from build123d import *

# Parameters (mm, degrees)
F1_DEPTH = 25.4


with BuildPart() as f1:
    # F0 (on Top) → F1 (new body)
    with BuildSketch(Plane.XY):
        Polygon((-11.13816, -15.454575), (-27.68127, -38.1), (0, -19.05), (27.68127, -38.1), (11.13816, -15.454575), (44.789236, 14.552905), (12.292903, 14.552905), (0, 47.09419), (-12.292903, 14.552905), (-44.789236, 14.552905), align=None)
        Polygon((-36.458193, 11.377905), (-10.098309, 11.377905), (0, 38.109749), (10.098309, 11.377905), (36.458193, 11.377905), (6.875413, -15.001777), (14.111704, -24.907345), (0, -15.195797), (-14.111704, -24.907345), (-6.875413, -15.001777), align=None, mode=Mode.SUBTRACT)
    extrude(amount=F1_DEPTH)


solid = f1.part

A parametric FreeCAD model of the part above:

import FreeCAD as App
import Part
import Sketcher

V = App.Vector
Q = App.Units.Quantity

doc = App.newDocument("Part")
body = doc.addObject("PartDesign::Body", "Body")

sketch1 = doc.addObject("Sketcher::SketchObject", "Sketch")
body.addObject(sketch1)
sketch1.AttachmentSupport = (doc.XY_Plane, [""])
sketch1.MapMode = "FlatFace"
sketch1.addGeometry([
    Part.LineSegment(V(-11, -15, 0), V(-28, -38, 0)),
    Part.LineSegment(V(-28, -38, 0), V(0, -19, 0)),
    Part.LineSegment(V(0, -19, 0), V(28, -38, 0)),
    Part.LineSegment(V(28, -38, 0), V(11, -15, 0)),
    Part.LineSegment(V(11, -15, 0), V(45, 15, 0)),
    Part.LineSegment(V(45, 15, 0), V(12, 15, 0)),
    Part.LineSegment(V(12, 15, 0), V(0, 47, 0)),
    Part.LineSegment(V(0, 47, 0), V(-12, 15, 0)),
    Part.LineSegment(V(-12, 15, 0), V(-45, 15, 0)),
    Part.LineSegment(V(-45, 15, 0), V(-11, -15, 0)),
    Part.LineSegment(V(-7, -15, 0), V(-36, 11, 0)),
    Part.LineSegment(V(-36, 11, 0), V(-10, 11, 0)),
    Part.LineSegment(V(-10, 11, 0), V(0, 38, 0)),
    Part.LineSegment(V(0, 38, 0), V(10, 11, 0)),
    Part.LineSegment(V(10, 11, 0), V(36, 11, 0)),
    Part.LineSegment(V(36, 11, 0), V(7, -15, 0)),
    Part.LineSegment(V(7, -15, 0), V(14, -25, 0)),
    Part.LineSegment(V(14, -25, 0), V(0, -15, 0)),
    Part.LineSegment(V(0, -15, 0), V(-14, -25, 0)),
    Part.LineSegment(V(-14, -25, 0), V(-7, -15, 0)),
], False)
sketch1.addConstraint([
    Sketcher.Constraint("Coincident", 0, 2, 1, 1),
    Sketcher.Constraint("Coincident", 1, 2, 2, 1),
    Sketcher.Constraint("Coincident", 2, 2, 3, 1),
    Sketcher.Constraint("Coincident", 3, 2, 4, 1),
    Sketcher.Constraint("Coincident", 4, 2, 5, 1),
    Sketcher.Constraint("Coincident", 5, 2, 6, 1),
    Sketcher.Constraint("Coincident", 6, 2, 7, 1),
    Sketcher.Constraint("Coincident", 7, 2, 8, 1),
    Sketcher.Constraint("Coincident", 8, 2, 9, 1),
    Sketcher.Constraint("Coincident", 9, 2, 0, 1),
    Sketcher.Constraint("Coincident", 10, 2, 11, 1),
    Sketcher.Constraint("Coincident", 11, 2, 12, 1),
    Sketcher.Constraint("Coincident", 12, 2, 13, 1),
    Sketcher.Constraint("Coincident", 13, 2, 14, 1),
    Sketcher.Constraint("Coincident", 14, 2, 15, 1),
    Sketcher.Constraint("Coincident", 15, 2, 16, 1),
    Sketcher.Constraint("Coincident", 16, 2, 17, 1),
    Sketcher.Constraint("Coincident", 17, 2, 18, 1),
    Sketcher.Constraint("Coincident", 18, 2, 19, 1),
    Sketcher.Constraint("Coincident", 19, 2, 10, 1),
    Sketcher.Constraint("Horizontal", 5),
    Sketcher.Constraint("Horizontal", 8),
    Sketcher.Constraint("Horizontal", 11),
    Sketcher.Constraint("Horizontal", 14),
    Sketcher.Constraint("Symmetric", 0, 2, 2, 2, -2),
    Sketcher.Constraint("Symmetric", 5, 2, 7, 2, -2),
    Sketcher.Constraint("Symmetric", 3, 2, 9, 2, -2),
    Sketcher.Constraint("Symmetric", 11, 2, 13, 2, -2),
    Sketcher.Constraint("Symmetric", 16, 2, 18, 2, -2),
    Sketcher.Constraint("Symmetric", 15, 2, 19, 2, -2),
    Sketcher.Constraint("PointOnObject", 1, 2, -2),
    Sketcher.Constraint("PointOnObject", 6, 2, -2),
    Sketcher.Constraint("PointOnObject", 12, 2, -2),
    Sketcher.Constraint("PointOnObject", 17, 2, -2),
    Sketcher.Constraint("Parallel", 9, 10),
    Sketcher.Constraint("Parallel", 7, 12),
    Sketcher.Constraint("Parallel", 4, 15),
    Sketcher.Constraint("Parallel", 3, 16),
    Sketcher.Constraint("Parallel", 2, 17),
    Sketcher.Constraint("Equal", 5, 8),
    Sketcher.Constraint("DistanceY", 0, 2, -1, 1, Q("1.5 in")),
    Sketcher.Constraint("DistanceY", 1, 2, -1, 1, Q("0.75 in")),
    Sketcher.Constraint("DistanceY", 10, 2, 8, 2, Q("0.125 in")),
    Sketcher.Constraint("Distance", 10, 39.636202),
    Sketcher.Constraint("Distance", 16, 12.2672),
    Sketcher.Constraint("Distance", 4, 45.087069),
    Sketcher.Constraint("Distance", 17, 17.130509),
    Sketcher.Constraint("DistanceX", 5, 2, 5, 1, 32.496333),
    Sketcher.Constraint("DistanceX", 11, 1, 11, 2, 26.359884),
    Sketcher.Constraint("DistanceX", 0, 2, -1, 1, 27.68127),
    Sketcher.Constraint("DistanceX", -1, 1, 3, 2, 11.13816),
    Sketcher.Constraint("DistanceY", -1, 1, 6, 2, 47.09419),
    Sketcher.Constraint("DistanceX", 11, 2, -1, 1, 10.098309),
    Sketcher.Constraint("DistanceY", -1, 1, 12, 2, 38.109749),
])
pad1 = doc.addObject("PartDesign::Pad", "Pad")
body.addObject(pad1)
pad1.Profile = sketch1
pad1.Length = Q("1 in")

doc.recompute()
